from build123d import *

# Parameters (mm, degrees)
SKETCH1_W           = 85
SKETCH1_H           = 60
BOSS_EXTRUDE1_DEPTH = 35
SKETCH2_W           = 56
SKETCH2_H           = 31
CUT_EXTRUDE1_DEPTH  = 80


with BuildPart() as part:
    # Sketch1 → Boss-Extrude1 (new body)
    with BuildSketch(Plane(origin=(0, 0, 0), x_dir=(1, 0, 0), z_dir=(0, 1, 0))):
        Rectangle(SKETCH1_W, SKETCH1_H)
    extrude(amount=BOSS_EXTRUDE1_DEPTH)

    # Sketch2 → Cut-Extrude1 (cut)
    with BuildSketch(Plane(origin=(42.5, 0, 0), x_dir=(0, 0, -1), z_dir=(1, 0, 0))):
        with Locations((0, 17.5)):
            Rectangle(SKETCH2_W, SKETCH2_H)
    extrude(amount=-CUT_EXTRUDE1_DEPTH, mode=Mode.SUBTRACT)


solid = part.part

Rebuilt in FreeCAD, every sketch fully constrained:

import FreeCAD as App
import Part
import Sketcher
from FreeCAD import Vector


def add_polygon(sketch, points):
    """Adds a closed chain of lines whose ends are joined by coincident constraints."""
    first, n = sketch.GeometryCount, len(points)
    for a, b in zip(points, points[1:] + points[:1]):
        sketch.addGeometry(Part.LineSegment(App.Vector(*a, 0), App.Vector(*b, 0)), False)
    for i in range(n):
        sketch.addConstraint(Sketcher.Constraint("Coincident", first + i, 2, first + (i + 1) % n, 1))

doc = App.newDocument("Part")
body = doc.addObject("PartDesign::Body", "Body")

# Sketch on XZ plane
sketch1 = body.newObject("Sketcher::SketchObject", "Sketch")
sketch1.AttachmentSupport = (doc.getObject("XZ_Plane"), [""])
sketch1.MapMode = "FlatFace"
add_polygon(sketch1, [(-42, -30), (-42, 30), (42, 30), (42, -30)])  # lines 0-3
sketch1.addConstraint(Sketcher.Constraint("Vertical", 0))
sketch1.addConstraint(Sketcher.Constraint("Horizontal", 1))
sketch1.addConstraint(Sketcher.Constraint("Vertical", 2))
sketch1.addConstraint(Sketcher.Constraint("Horizontal", 3))
sketch1.addConstraint(Sketcher.Constraint("Symmetric", 0, 2, 2, 2, -1, 1))
sketch1.addConstraint(Sketcher.Constraint("DistanceX", 1, 1, 1, 2, 85.0))
sketch1.addConstraint(Sketcher.Constraint("DistanceY", 0, 1, 0, 2, 60.0))
pad1 = body.newObject("PartDesign::Pad", "Pad")
pad1.Profile = sketch1
pad1.Length = 35
pad1.Reversed = True

# Sketch on YZ plane
sketch2 = body.newObject("Sketcher::SketchObject", "Sketch001")
sketch2.AttachmentSupport = (doc.getObject("YZ_Plane"), [""])
sketch2.MapMode = "FlatFace"
sketch2.AttachmentOffset = App.Placement(Vector(0, 0, 42.5), App.Rotation())
add_polygon(sketch2, [(33, 28), (2, 28), (2, -28), (33, -28)])  # lines 0-3
sketch2.addConstraint(Sketcher.Constraint("Horizontal", 0))
sketch2.addConstraint(Sketcher.Constraint("Vertical", 1))
sketch2.addConstraint(Sketcher.Constraint("Horizontal", 2))
sketch2.addConstraint(Sketcher.Constraint("Vertical", 3))
sketch2.addConstraint(Sketcher.Constraint("DistanceX", 0, 2, 0, 1, 31.0))
sketch2.addConstraint(Sketcher.Constraint("DistanceY", 1, 2, 1, 1, 56.0))
sketch2.addConstraint(Sketcher.Constraint("DistanceX", -1, 1, 0, 2, 2.0))
sketch2.addConstraint(Sketcher.Constraint("DistanceY", -1, 1, 0, 2, 28.0))
pocket1 = body.newObject("PartDesign::Pocket", "Pocket")
pocket1.Profile = sketch2
pocket1.Length = 80

doc.recompute()
